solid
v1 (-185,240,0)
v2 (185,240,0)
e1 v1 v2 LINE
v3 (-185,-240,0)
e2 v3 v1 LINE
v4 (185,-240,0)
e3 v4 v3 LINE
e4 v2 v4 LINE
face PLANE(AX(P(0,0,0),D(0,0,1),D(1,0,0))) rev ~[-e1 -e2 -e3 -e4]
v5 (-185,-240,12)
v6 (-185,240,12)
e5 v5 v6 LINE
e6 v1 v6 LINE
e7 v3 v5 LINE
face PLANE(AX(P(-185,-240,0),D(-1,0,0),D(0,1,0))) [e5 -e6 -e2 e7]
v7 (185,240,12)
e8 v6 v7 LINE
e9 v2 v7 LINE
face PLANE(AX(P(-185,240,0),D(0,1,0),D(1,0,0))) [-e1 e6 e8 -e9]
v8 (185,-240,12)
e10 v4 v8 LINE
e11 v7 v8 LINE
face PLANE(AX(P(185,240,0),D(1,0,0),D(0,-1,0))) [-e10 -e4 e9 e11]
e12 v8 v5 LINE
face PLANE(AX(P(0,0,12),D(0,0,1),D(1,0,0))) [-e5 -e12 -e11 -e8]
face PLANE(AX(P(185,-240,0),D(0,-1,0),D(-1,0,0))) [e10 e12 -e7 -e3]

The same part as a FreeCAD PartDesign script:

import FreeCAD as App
import Part
import Sketcher

doc = App.newDocument("Part")
body = doc.addObject("PartDesign::Body", "Body")

# Sketch on XY plane
sketch1 = doc.addObject("Sketcher::SketchObject", "Sketch")
body.addObject(sketch1)
sketch1.AttachmentSupport = (doc.XY_Plane, [""])
sketch1.MapMode = "FlatFace"
sketch1.addGeometry(Part.LineSegment(App.Vector(-185, -240, 0), App.Vector(185, -240, 0)), False)
sketch1.addGeometry(Part.LineSegment(App.Vector(185, -240, 0), App.Vector(185, 240, 0)), False)
sketch1.addGeometry(Part.LineSegment(App.Vector(185, 240, 0), App.Vector(-185, 240, 0)), False)
sketch1.addGeometry(Part.LineSegment(App.Vector(-185, 240, 0), App.Vector(-185, -240, 0)), False)
sketch1.addConstraint(Sketcher.Constraint("Coincident", 0, 2, 1, 1))
sketch1.addConstraint(Sketcher.Constraint("Coincident", 1, 2, 2, 1))
sketch1.addConstraint(Sketcher.Constraint("Coincident", 2, 2, 3, 1))
sketch1.addConstraint(Sketcher.Constraint("Coincident", 3, 2, 0, 1))
sketch1.addConstraint(Sketcher.Constraint("Horizontal", 0))
sketch1.addConstraint(Sketcher.Constraint("Vertical", 1))
sketch1.addConstraint(Sketcher.Constraint("Horizontal", 2))
sketch1.addConstraint(Sketcher.Constraint("Vertical", 3))
sketch1.addConstraint(Sketcher.Constraint("Symmetric", 0, 2, 2, 2, -1, 1))
sketch1.addConstraint(Sketcher.Constraint("DistanceX", 0, 1, 0, 2, 370.0))
sketch1.addConstraint(Sketcher.Constraint("DistanceY", 1, 1, 1, 2, 480.0))
pad1 = doc.addObject("PartDesign::Pad", "Pad")
body.addObject(pad1)
pad1.Profile = sketch1
pad1.Length = 12

doc.recompute()
